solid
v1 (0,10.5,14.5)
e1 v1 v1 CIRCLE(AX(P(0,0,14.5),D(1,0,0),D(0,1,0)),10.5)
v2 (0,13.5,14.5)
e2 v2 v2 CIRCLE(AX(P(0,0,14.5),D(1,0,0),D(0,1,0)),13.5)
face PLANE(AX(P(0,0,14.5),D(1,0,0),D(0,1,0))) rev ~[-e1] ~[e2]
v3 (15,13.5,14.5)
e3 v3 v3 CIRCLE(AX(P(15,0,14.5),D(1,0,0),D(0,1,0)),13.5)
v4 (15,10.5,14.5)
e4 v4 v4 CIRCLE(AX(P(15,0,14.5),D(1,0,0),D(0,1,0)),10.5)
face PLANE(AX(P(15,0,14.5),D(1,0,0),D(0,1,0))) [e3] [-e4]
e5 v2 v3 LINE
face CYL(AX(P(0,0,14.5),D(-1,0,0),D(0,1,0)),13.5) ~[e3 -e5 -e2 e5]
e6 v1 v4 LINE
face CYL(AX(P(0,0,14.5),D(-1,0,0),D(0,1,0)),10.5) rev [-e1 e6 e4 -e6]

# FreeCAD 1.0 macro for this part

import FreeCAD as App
import Part
import Sketcher
from FreeCAD import Vector
Q = App.Units.Quantity

doc = App.newDocument("Part")
body = doc.addObject("PartDesign::Body", "Body")

sketch1 = doc.addObject("Sketcher::SketchObject", "Sketch")
body.addObject(sketch1)
sketch1.AttachmentSupport = (doc.YZ_Plane, [""])
sketch1.MapMode = "FlatFace"
sketch1.addGeometry(Part.Circle(Vector(0, 14.5, 0), Vector(0, 0, 1), 13.5), False)
sketch1.addGeometry(Part.Circle(Vector(0, 14.5, 0), Vector(0, 0, 1), 10.5), False)
sketch1.addConstraint(Sketcher.Constraint("Coincident", 1, 3, 0, 3))
sketch1.addConstraint(Sketcher.Constraint("PointOnObject", 0, 3, -2))
sketch1.addConstraint(Sketcher.Constraint("Diameter", 0, Q("27 mm")))
sketch1.addConstraint(Sketcher.Constraint("Diameter", 1, Q("21 mm")))
sketch1.addConstraint(Sketcher.Constraint("DistanceY", -1, 1, 0, 3, Q("14.5 mm")))
pad1 = doc.addObject("PartDesign::Pad", "Pad")
body.addObject(pad1)
pad1.Profile = sketch1
pad1.Length = 15

doc.recompute()
